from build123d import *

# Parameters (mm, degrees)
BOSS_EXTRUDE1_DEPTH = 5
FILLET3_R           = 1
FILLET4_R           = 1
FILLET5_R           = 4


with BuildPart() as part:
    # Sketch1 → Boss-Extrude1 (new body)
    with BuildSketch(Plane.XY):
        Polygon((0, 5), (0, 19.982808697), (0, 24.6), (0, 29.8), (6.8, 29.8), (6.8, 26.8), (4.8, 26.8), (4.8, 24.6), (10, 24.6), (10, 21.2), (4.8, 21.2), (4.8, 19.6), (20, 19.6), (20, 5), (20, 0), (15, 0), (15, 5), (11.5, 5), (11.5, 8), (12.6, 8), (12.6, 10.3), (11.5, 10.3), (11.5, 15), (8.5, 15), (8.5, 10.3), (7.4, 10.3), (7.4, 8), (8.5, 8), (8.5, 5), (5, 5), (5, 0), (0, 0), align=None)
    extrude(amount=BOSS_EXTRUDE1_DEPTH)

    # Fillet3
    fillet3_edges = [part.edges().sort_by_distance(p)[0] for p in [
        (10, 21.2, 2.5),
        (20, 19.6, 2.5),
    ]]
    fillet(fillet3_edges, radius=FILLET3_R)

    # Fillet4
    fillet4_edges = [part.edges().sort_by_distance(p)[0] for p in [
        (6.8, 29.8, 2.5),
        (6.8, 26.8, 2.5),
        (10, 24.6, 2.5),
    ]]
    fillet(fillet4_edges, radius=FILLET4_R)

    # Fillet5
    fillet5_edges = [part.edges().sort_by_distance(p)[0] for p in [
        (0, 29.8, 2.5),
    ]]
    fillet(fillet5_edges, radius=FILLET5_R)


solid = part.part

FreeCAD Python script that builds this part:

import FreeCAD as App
import Part
import Sketcher

V = App.Vector
Q = App.Units.Quantity


def edges_at(feature, points):
    """Names of the edges that pass closest to the given points."""
    edges = feature.Shape.Edges
    near = lambda p: min(range(len(edges)), key=lambda i: edges[i].distToShape(Part.Vertex(*p))[0])
    return sorted({f"Edge{near(p) + 1}" for p in points})

doc = App.newDocument("Part")
params = doc.addObject("Spreadsheet::Sheet", "Params")
for row, (alias, value) in enumerate([
    ("sketch1_width", "5 mm"),
    ("sketch1_width2", "3 mm"),
    ("sketch1_width3", "2 mm"),
    ("sketch1_width4", "3.5 mm"),
    ("sketch1_width5", "1.1 mm"),
    ("pad1_length", "5 mm"),
    ("fillet_radius", "1 mm"),
    ("fillet2_radius", "1 mm"),
    ("fillet3_radius", "4 mm"),
], start=1):
    params.set(f"A{row}", alias)
    params.set(f"B{row}", "=" + value)
    params.setAlias(f"B{row}", alias)

body = doc.addObject("PartDesign::Body", "Body")

sketch1 = body.newObject("Sketcher::SketchObject", "Sketch")
sketch1.AttachmentSupport = (doc.getObject("XY_Plane"), [""])
sketch1.MapMode = "FlatFace"
sketch1.addGeometry(Part.LineSegment(V(0, 29.8, 0), V(0, 0, 0)), False)
sketch1.addGeometry(Part.LineSegment(V(0, 0, 0), V(5, 0, 0)), False)
sketch1.addGeometry(Part.LineSegment(V(5, 0, 0), V(5, 5, 0)), False)
sketch1.addGeometry(Part.LineSegment(V(5, 5, 0), V(8.5, 5, 0)), False)
sketch1.addGeometry(Part.LineSegment(V(8.5, 5, 0), V(8.5, 8, 0)), False)
sketch1.addGeometry(Part.LineSegment(V(8.5, 8, 0), V(7.4, 8, 0)), False)
sketch1.addGeometry(Part.LineSegment(V(7.4, 8, 0), V(7.4, 10.3, 0)), False)
sketch1.addGeometry(Part.LineSegment(V(7.4, 10.3, 0), V(8.5, 10.3, 0)), False)
sketch1.addGeometry(Part.LineSegment(V(8.5, 10.3, 0), V(8.5, 15, 0)), False)
sketch1.addGeometry(Part.LineSegment(V(8.5, 15, 0), V(11.5, 15, 0)), False)
sketch1.addGeometry(Part.LineSegment(V(11.5, 15, 0), V(11.5, 10.3, 0)), False)
sketch1.addGeometry(Part.LineSegment(V(11.5, 10.3, 0), V(12.6, 10.3, 0)), False)
sketch1.addGeometry(Part.LineSegment(V(12.6, 10.3, 0), V(12.6, 8, 0)), False)
sketch1.addGeometry(Part.LineSegment(V(12.6, 8, 0), V(11.5, 8, 0)), False)
sketch1.addGeometry(Part.LineSegment(V(11.5, 8, 0), V(11.5, 5, 0)), False)
sketch1.addGeometry(Part.LineSegment(V(11.5, 5, 0), V(15, 5, 0)), False)
sketch1.addGeometry(Part.LineSegment(V(15, 5, 0), V(15, 0, 0)), False)
sketch1.addGeometry(Part.LineSegment(V(15, 0, 0), V(20, 0, 0)), False)
sketch1.addGeometry(Part.LineSegment(V(20, 0, 0), V(20, 19.6, 0)), False)
sketch1.addGeometry(Part.LineSegment(V(20, 19.6, 0), V(4.8, 19.6, 0)), False)
sketch1.addGeometry(Part.LineSegment(V(4.8, 19.6, 0), V(4.8, 21.2, 0)), False)
sketch1.addGeometry(Part.LineSegment(V(4.8, 21.2, 0), V(10, 21.2, 0)), False)
sketch1.addGeometry(Part.LineSegment(V(10, 21.2, 0), V(10, 24.6, 0)), False)
sketch1.addGeometry(Part.LineSegment(V(10, 24.6, 0), V(4.8, 24.6, 0)), False)
sketch1.addGeometry(Part.LineSegment(V(4.8, 24.6, 0), V(4.8, 26.8, 0)), False)
sketch1.addGeometry(Part.LineSegment(V(4.8, 26.8, 0), V(6.8, 26.8, 0)), False)
sketch1.addGeometry(Part.LineSegment(V(6.8, 26.8, 0), V(6.8, 29.8, 0)), False)
sketch1.addGeometry(Part.LineSegment(V(6.8, 29.8, 0), V(0, 29.8, 0)), False)
sketch1.addConstraint(Sketcher.Constraint("Coincident", 0, 2, 1, 1))
sketch1.addConstraint(Sketcher.Constraint("Coincident", 1, 2, 2, 1))
sketch1.addConstraint(Sketcher.Constraint("Coincident", 2, 2, 3, 1))
sketch1.addConstraint(Sketcher.Constraint("Coincident", 3, 2, 4, 1))
sketch1.addConstraint(Sketcher.Constraint("Coincident", 4, 2, 5, 1))
sketch1.addConstraint(Sketcher.Constraint("Coincident", 5, 2, 6, 1))
sketch1.addConstraint(Sketcher.Constraint("Coincident", 6, 2, 7, 1))
sketch1.addConstraint(Sketcher.Constraint("Coincident", 7, 2, 8, 1))
sketch1.addConstraint(Sketcher.Constraint("Coincident", 8, 2, 9, 1))
sketch1.addConstraint(Sketcher.Constraint("Coincident", 9, 2, 10, 1))
sketch1.addConstraint(Sketcher.Constraint("Coincident", 10, 2, 11, 1))
sketch1.addConstraint(Sketcher.Constraint("Coincident", 11, 2, 12, 1))
sketch1.addConstraint(Sketcher.Constraint("Coincident", 12, 2, 13, 1))
sketch1.addConstraint(Sketcher.Constraint("Coincident", 13, 2, 14, 1))
sketch1.addConstraint(Sketcher.Constraint("Coincident", 14, 2, 15, 1))
sketch1.addConstraint(Sketcher.Constraint("Coincident", 15, 2, 16, 1))
sketch1.addConstraint(Sketcher.Constraint("Coincident", 16, 2, 17, 1))
sketch1.addConstraint(Sketcher.Constraint("Coincident", 17, 2, 18, 1))
sketch1.addConstraint(Sketcher.Constraint("Coincident", 18, 2, 19, 1))
sketch1.addConstraint(Sketcher.Constraint("Coincident", 19, 2, 20, 1))
sketch1.addConstraint(Sketcher.Constraint("Coincident", 20, 2, 21, 1))
sketch1.addConstraint(Sketcher.Constraint("Coincident", 21, 2, 22, 1))
sketch1.addConstraint(Sketcher.Constraint("Coincident", 22, 2, 23, 1))
sketch1.addConstraint(Sketcher.Constraint("Coincident", 23, 2, 24, 1))
sketch1.addConstraint(Sketcher.Constraint("Coincident", 24, 2, 25, 1))
sketch1.addConstraint(Sketcher.Constraint("Coincident", 25, 2, 26, 1))
sketch1.addConstraint(Sketcher.Constraint("Coincident", 26, 2, 27, 1))
sketch1.addConstraint(Sketcher.Constraint("Coincident", 27, 2, 0, 1))
sketch1.addConstraint(Sketcher.Constraint("Vertical", 0))
sketch1.addConstraint(Sketcher.Constraint("Horizontal", 1))
sketch1.addConstraint(Sketcher.Constraint("Vertical", 2))
sketch1.addConstraint(Sketcher.Constraint("Horizontal", 3))
sketch1.addConstraint(Sketcher.Constraint("Vertical", 4))
sketch1.addConstraint(Sketcher.Constraint("Horizontal", 5))
sketch1.addConstraint(Sketcher.Constraint("Vertical", 6))
sketch1.addConstraint(Sketcher.Constraint("Horizontal", 7))
sketch1.addConstraint(Sketcher.Constraint("Vertical", 8))
sketch1.addConstraint(Sketcher.Constraint("Horizontal", 9))
sketch1.addConstraint(Sketcher.Constraint("Vertical", 10))
sketch1.addConstraint(Sketcher.Constraint("Horizontal", 11))
sketch1.addConstraint(Sketcher.Constraint("Vertical", 12))
sketch1.addConstraint(Sketcher.Constraint("Horizontal", 13))
sketch1.addConstraint(Sketcher.Constraint("Vertical", 14))
sketch1.addConstraint(Sketcher.Constraint("Horizontal", 15))
sketch1.addConstraint(Sketcher.Constraint("Vertical", 16))
sketch1.addConstraint(Sketcher.Constraint("Horizontal", 17))
sketch1.addConstraint(Sketcher.Constraint("Vertical", 18))
sketch1.addConstraint(Sketcher.Constraint("Horizontal", 19))
sketch1.addConstraint(Sketcher.Constraint("Vertical", 20))
sketch1.addConstraint(Sketcher.Constraint("Horizontal", 21))
sketch1.addConstraint(Sketcher.Constraint("Vertical", 22))
sketch1.addConstraint(Sketcher.Constraint("Horizontal", 23))
sketch1.addConstraint(Sketcher.Constraint("Vertical", 24))
sketch1.addConstraint(Sketcher.Constraint("Horizontal", 25))
sketch1.addConstraint(Sketcher.Constraint("Vertical", 26))
sketch1.addConstraint(Sketcher.Constraint("Horizontal", 27))
sketch1.addConstraint(Sketcher.Constraint("Coincident", 0, 2, -1, 1))
sketch1.addConstraint(Sketcher.Constraint("PointOnObject", 16, 2, -1))
sketch1.addConstraint(Sketcher.Constraint("Horizontal", 7, 2, 10, 2))
sketch1.addConstraint(Sketcher.Constraint("Horizontal", 5, 2, 12, 2))
sketch1.addConstraint(Sketcher.Constraint("Horizontal", 3, 2, 14, 2))
sketch1.addConstraint(Sketcher.Constraint("Vertical", 4, 2, 7, 2))
sketch1.addConstraint(Sketcher.Constraint("Vertical", 10, 2, 13, 2))
sketch1.addConstraint(Sketcher.Constraint("Vertical", 20, 2, 23, 2))
sketch1.addConstraint(Sketcher.Constraint("Equal", 7, 11))
sketch1.addConstraint(Sketcher.Constraint("Equal", 3, 15))
sketch1.addConstraint(Sketcher.Constraint("Equal", 1, 17))
sketch1.addConstraint(Sketcher.Constraint("Equal", 17, 2))
sketch1.addConstraint(Sketcher.Constraint("Equal", 9, 4))
sketch1.addConstraint(Sketcher.Constraint("Equal", 14, 26))
sketch1.addConstraint(Sketcher.Constraint("DistanceX", 1, 1, 1, 2, Q("5 mm")))
sketch1.addConstraint(Sketcher.Constraint("DistanceX", 9, 1, 9, 2, Q("3 mm")))
sketch1.addConstraint(Sketcher.Constraint("DistanceX", 25, 1, 25, 2, Q("2 mm")))
sketch1.addConstraint(Sketcher.Constraint("DistanceX", 3, 1, 3, 2, Q("3.5 mm")))
sketch1.addConstraint(Sketcher.Constraint("DistanceX", 5, 2, 5, 1, Q("1.1 mm")))
sketch1.addConstraint(Sketcher.Constraint("DistanceX", 19, 2, 19, 1, Q("15.2 mm")))
sketch1.addConstraint(Sketcher.Constraint("DistanceX", 21, 1, 21, 2, Q("5.2 mm")))
sketch1.addConstraint(Sketcher.Constraint("DistanceY", 0, 2, 0, 1, Q("29.8 mm")))
sketch1.addConstraint(Sketcher.Constraint("DistanceY", 6, 1, 6, 2, Q("2.3 mm")))
sketch1.addConstraint(Sketcher.Constraint("DistanceY", 8, 1, 8, 2, Q("4.7 mm")))
sketch1.addConstraint(Sketcher.Constraint("DistanceY", 18, 1, 18, 2, Q("19.6 mm")))
sketch1.addConstraint(Sketcher.Constraint("DistanceY", 20, 1, 20, 2, Q("1.6 mm")))
sketch1.addConstraint(Sketcher.Constraint("DistanceY", 22, 1, 22, 2, Q("3.4 mm")))
sketch1.setExpression("Constraints[70]", "Params.sketch1_width")
sketch1.setExpression("Constraints[71]", "Params.sketch1_width2")
sketch1.setExpression("Constraints[72]", "Params.sketch1_width3")
sketch1.setExpression("Constraints[73]", "Params.sketch1_width4")
sketch1.setExpression("Constraints[74]", "Params.sketch1_width5")
pad1 = body.newObject("PartDesign::Pad", "Pad")
pad1.Profile = sketch1
pad1.setExpression("Length", "Params.pad1_length")
doc.recompute()

fillet = body.newObject("PartDesign::Fillet", "Fillet")
fillet.Base = (pad1, edges_at(pad1, [(10, 21.2, 2.5), (20, 19.6, 2.5)]))
fillet.setExpression("Radius", "Params.fillet_radius")
doc.recompute()

fillet2 = body.newObject("PartDesign::Fillet", "Fillet001")
fillet2.Base = (fillet, edges_at(fillet, [(6.8, 29.8, 2.5), (6.8, 26.8, 2.5), (10, 24.6, 2.5)]))
fillet2.setExpression("Radius", "Params.fillet2_radius")
doc.recompute()

fillet3 = body.newObject("PartDesign::Fillet", "Fillet002")
fillet3.Base = (fillet2, edges_at(fillet2, [(0, 29.8, 2.5)]))
fillet3.setExpression("Radius", "Params.fillet3_radius")

doc.recompute()
